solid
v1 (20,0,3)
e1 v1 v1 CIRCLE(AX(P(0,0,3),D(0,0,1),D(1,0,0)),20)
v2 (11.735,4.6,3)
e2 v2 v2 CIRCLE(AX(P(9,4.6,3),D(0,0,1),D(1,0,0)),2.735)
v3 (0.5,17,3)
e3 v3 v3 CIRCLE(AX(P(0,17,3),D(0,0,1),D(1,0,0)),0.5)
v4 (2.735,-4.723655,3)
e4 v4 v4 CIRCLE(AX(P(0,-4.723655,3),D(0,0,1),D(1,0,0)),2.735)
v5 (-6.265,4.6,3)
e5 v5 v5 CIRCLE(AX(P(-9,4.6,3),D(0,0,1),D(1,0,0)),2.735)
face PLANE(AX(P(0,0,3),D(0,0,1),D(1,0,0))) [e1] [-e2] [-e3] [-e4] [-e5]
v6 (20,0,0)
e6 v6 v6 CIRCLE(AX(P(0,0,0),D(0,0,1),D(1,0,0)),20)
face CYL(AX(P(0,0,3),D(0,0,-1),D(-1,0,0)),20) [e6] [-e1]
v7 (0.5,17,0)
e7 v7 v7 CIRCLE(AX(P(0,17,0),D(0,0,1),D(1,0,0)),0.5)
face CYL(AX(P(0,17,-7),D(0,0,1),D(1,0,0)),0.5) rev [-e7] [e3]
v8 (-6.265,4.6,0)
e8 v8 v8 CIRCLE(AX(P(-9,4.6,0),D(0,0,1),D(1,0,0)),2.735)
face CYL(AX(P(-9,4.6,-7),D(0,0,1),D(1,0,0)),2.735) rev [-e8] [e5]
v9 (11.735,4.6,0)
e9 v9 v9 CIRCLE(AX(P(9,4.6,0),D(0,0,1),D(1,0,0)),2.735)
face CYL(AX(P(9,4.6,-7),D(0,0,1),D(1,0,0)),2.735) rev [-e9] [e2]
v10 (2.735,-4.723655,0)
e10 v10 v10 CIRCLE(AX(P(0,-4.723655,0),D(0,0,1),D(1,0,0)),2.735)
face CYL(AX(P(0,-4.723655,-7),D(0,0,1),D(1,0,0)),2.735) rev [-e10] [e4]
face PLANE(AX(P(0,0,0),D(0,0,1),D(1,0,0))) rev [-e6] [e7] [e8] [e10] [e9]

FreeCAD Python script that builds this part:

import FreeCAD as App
import Part
import Sketcher
from FreeCAD import Vector

doc = App.newDocument("Part")
body = doc.addObject("PartDesign::Body", "Body")

# Sketch on XY plane
sketch1 = body.newObject("Sketcher::SketchObject", "Sketch")
sketch1.AttachmentSupport = (doc.getObject("XY_Plane"), [""])
sketch1.MapMode = "FlatFace"
sketch1.addGeometry(Part.Circle(Vector(0, 0, 0), Vector(0, 0, 1), 20), False)
sketch1.addConstraint([
    Sketcher.Constraint("Coincident", 0, 3, -1, 1),
    Sketcher.Constraint("Diameter", 0, 40.0),
])
pad1 = body.newObject("PartDesign::Pad", "Pad")
pad1.Profile = sketch1
pad1.Length = 3

# Sketch on XY plane
sketch2 = body.newObject("Sketcher::SketchObject", "Sketch001")
sketch2.AttachmentSupport = (doc.getObject("XY_Plane"), [""])
sketch2.MapMode = "FlatFace"
sketch2.AttachmentOffset = App.Placement(Vector(0, 0, 3), App.Rotation())
sketch2.addGeometry([
    Part.Circle(Vector(0, -4.723655, 0), Vector(0, 0, 1), 2.735),
    Part.Circle(Vector(9, 4.6, 0), Vector(0, 0, 1), 2.735),
    Part.Circle(Vector(-9, 4.6, 0), Vector(0, 0, 1), 2.735),
], False)
sketch2.addConstraint([
    Sketcher.Constraint("Equal", 0, 1),
    Sketcher.Constraint("Equal", 1, 2),
    Sketcher.Constraint("Symmetric", 1, 3, 2, 3, -2),
    Sketcher.Constraint("PointOnObject", 0, 3, -2),
    Sketcher.Constraint("Diameter", 0, 5.47),
    Sketcher.Constraint("DistanceX", -1, 1, 1, 3, 9.0),
    Sketcher.Constraint("DistanceY", -1, 1, 1, 3, 4.6),
    Sketcher.Constraint("DistanceY", 0, 3, -1, 1, 4.723655),
])
pocket1 = body.newObject("PartDesign::Pocket", "Pocket")
pocket1.Profile = sketch2
pocket1.Length = 10

# Sketch on XY plane
sketch3 = body.newObject("Sketcher::SketchObject", "Sketch002")
sketch3.AttachmentSupport = (doc.getObject("XY_Plane"), [""])
sketch3.MapMode = "FlatFace"
sketch3.AttachmentOffset = App.Placement(Vector(0, 0, 3), App.Rotation())
sketch3.addGeometry(Part.Circle(Vector(0, 17, 0), Vector(0, 0, 1), 0.5), False)
sketch3.addConstraint([
    Sketcher.Constraint("PointOnObject", 0, 3, -2),
    Sketcher.Constraint("Diameter", 0, 1.0),
    Sketcher.Constraint("DistanceY", -1, 1, 0, 3, 17.0),
])
pocket2 = body.newObject("PartDesign::Pocket", "Pocket001")
pocket2.Profile = sketch3
pocket2.Length = 10

doc.recompute()
